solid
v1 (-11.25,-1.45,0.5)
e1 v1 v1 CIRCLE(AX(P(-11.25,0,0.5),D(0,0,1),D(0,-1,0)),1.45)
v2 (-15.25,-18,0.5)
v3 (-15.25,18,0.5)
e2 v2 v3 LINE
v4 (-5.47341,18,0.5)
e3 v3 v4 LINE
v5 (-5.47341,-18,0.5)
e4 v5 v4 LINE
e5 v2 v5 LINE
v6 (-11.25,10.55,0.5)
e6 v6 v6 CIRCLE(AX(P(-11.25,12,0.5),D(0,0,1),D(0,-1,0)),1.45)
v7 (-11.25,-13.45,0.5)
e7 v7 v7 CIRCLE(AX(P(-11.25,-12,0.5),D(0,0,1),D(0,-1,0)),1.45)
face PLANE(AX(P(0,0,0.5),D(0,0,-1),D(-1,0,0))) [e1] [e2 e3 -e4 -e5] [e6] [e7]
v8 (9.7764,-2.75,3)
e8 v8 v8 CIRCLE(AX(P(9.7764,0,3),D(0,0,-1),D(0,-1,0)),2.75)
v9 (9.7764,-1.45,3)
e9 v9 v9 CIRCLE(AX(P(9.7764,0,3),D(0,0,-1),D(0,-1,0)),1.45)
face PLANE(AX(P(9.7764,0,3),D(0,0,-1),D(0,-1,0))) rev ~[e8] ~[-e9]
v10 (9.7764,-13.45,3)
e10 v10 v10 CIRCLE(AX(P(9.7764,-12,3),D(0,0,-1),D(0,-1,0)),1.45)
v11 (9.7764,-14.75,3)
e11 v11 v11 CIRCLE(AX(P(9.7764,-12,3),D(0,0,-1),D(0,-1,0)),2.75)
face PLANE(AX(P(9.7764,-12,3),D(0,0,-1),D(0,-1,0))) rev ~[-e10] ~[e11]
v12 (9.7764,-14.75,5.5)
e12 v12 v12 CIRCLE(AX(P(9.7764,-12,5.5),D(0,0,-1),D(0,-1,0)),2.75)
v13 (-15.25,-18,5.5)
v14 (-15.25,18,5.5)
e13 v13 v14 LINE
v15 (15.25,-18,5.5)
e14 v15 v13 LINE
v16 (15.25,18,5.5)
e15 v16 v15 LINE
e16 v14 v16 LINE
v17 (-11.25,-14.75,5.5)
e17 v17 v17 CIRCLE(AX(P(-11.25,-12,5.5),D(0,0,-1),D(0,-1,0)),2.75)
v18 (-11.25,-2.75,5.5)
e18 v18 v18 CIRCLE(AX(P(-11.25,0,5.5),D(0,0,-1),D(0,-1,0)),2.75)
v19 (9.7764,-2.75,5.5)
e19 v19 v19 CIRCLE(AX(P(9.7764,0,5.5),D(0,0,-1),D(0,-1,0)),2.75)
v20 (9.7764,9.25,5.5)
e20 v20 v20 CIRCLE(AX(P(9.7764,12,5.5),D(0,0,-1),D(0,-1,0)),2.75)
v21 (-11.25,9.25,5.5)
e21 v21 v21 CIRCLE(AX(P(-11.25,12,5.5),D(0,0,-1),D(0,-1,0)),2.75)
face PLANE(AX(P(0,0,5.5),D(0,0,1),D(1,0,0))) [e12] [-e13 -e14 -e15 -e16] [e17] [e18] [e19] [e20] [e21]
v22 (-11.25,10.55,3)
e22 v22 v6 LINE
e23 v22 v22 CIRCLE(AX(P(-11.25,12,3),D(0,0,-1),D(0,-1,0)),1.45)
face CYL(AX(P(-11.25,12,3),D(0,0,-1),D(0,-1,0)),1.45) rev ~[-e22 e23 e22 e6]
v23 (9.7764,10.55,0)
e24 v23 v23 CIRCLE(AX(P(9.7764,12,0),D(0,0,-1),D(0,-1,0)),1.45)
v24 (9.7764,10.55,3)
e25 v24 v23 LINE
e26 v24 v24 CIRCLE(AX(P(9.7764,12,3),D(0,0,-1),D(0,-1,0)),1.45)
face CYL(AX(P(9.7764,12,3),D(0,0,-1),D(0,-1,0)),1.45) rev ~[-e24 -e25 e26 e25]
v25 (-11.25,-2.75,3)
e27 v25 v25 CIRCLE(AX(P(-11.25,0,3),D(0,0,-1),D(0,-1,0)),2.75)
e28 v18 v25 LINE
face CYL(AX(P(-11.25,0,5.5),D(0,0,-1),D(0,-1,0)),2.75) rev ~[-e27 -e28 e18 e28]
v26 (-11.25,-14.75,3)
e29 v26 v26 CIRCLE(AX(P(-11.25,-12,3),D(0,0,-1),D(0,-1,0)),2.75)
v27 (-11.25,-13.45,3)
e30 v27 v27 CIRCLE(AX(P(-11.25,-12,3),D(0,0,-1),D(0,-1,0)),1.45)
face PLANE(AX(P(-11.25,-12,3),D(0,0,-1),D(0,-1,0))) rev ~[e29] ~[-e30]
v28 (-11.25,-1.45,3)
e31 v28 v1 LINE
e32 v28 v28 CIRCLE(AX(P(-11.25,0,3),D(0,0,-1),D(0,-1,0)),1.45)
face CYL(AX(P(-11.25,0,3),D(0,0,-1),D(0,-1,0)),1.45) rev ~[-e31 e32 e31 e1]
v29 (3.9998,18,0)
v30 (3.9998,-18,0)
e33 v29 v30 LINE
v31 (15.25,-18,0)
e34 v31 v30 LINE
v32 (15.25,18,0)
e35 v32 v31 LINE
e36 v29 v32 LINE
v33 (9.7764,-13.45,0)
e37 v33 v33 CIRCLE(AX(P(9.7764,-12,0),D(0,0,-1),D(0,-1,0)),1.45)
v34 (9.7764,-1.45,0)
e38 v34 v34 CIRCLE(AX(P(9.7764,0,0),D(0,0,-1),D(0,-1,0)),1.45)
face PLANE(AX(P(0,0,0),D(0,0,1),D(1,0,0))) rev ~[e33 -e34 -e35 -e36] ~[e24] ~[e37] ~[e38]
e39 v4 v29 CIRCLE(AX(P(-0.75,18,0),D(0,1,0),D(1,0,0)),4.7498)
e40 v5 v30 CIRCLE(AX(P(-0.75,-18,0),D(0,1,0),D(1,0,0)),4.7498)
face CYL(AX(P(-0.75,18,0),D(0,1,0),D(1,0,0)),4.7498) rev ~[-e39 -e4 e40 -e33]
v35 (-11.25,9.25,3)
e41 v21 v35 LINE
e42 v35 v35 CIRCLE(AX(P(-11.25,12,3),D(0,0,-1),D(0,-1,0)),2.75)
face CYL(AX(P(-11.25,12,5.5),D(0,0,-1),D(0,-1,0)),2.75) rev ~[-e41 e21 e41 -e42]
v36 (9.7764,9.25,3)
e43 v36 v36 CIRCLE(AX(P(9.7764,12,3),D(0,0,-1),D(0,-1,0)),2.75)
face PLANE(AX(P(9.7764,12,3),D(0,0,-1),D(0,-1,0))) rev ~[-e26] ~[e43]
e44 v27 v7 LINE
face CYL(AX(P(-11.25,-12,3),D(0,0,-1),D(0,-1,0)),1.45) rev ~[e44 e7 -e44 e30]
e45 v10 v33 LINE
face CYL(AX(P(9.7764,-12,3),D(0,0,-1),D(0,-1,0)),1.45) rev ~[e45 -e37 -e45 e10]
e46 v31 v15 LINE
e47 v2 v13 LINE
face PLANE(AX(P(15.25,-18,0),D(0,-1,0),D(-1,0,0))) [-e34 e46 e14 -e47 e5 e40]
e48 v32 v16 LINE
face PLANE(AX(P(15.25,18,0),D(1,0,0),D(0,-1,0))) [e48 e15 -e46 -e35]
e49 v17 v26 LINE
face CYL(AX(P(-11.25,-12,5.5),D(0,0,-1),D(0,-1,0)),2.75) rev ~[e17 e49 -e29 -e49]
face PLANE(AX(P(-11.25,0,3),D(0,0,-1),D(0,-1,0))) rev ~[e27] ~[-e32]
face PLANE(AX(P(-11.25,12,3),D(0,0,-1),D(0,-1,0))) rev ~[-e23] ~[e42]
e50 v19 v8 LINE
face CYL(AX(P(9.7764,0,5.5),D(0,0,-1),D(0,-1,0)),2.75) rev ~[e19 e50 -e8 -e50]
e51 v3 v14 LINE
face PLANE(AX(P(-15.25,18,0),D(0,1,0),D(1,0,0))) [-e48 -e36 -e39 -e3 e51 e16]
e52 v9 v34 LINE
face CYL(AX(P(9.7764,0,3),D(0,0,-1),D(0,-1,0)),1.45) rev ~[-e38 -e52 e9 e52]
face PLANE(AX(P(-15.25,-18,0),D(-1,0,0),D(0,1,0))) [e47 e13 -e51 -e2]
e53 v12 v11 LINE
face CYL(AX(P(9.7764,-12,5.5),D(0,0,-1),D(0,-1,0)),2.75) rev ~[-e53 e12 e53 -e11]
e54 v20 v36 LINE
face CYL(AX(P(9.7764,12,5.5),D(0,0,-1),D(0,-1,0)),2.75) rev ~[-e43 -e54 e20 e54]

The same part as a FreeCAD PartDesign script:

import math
import FreeCAD as App
import Part
import Sketcher

V = App.Vector


def add_polygon(sketch, points):
    """Adds a closed chain of lines whose ends are joined by coincident constraints."""
    first, n = sketch.GeometryCount, len(points)
    for a, b in zip(points, points[1:] + points[:1]):
        sketch.addGeometry(Part.LineSegment(App.Vector(*a, 0), App.Vector(*b, 0)), False)
    for i in range(n):
        sketch.addConstraint(Sketcher.Constraint("Coincident", first + i, 2, first + (i + 1) % n, 1))

doc = App.newDocument("Part")
body = doc.addObject("PartDesign::Body", "Body")

# Sketch on XY plane
sketch1 = body.newObject("Sketcher::SketchObject", "Sketch")
sketch1.AttachmentSupport = (doc.getObject("XY_Plane"), [""])
sketch1.MapMode = "FlatFace"
add_polygon(sketch1, [(15.25, 18), (-15.25, 18), (-15.25, -18), (15.25, -18)])  # lines 0-3
sketch1.addConstraint(Sketcher.Constraint("Horizontal", 0))
sketch1.addConstraint(Sketcher.Constraint("Vertical", 1))
sketch1.addConstraint(Sketcher.Constraint("Horizontal", 2))
sketch1.addConstraint(Sketcher.Constraint("Vertical", 3))
sketch1.addConstraint(Sketcher.Constraint("Symmetric", 0, 2, 2, 2, -1, 1))
sketch1.addConstraint(Sketcher.Constraint("DistanceY", 1, 2, 1, 1, 36.0))
sketch1.addConstraint(Sketcher.Constraint("DistanceX", 0, 2, 0, 1, 30.5))
pad1 = body.newObject("PartDesign::Pad", "Pad")
pad1.Profile = sketch1
pad1.Length = 5.5

# Sketch on XZ plane
sketch2 = body.newObject("Sketcher::SketchObject", "Sketch001")
sketch2.AttachmentSupport = (doc.getObject("XZ_Plane"), [""])
sketch2.MapMode = "FlatFace"
sketch2.AttachmentOffset = App.Placement(V(0, 0, -18), App.Rotation())
sketch2.addGeometry(Part.ArcOfCircle(Part.Circle(V(-0.75, 0, 0), V(0, 0, 1), 4.7498), math.radians(0), math.radians(186.042596)), False)
sketch2.addGeometry(Part.ArcOfCircle(Part.Circle(V(-0.75, 0, 0), V(0, 0, 1), 4.7498), math.radians(-173.957404), math.radians(0)), False)
sketch2.addConstraint(Sketcher.Constraint("Tangent", 0, 1, 1, 2))
sketch2.addConstraint(Sketcher.Constraint("Coincident", 1, 1, 0, 2))
sketch2.addConstraint(Sketcher.Constraint("PointOnObject", 0, 3, -1))
sketch2.addConstraint(Sketcher.Constraint("PointOnObject", 0, 1, -1))
sketch2.addConstraint(Sketcher.Constraint("DistanceY", 1, 1, -1, 1, 0.5))
sketch2.addConstraint(Sketcher.Constraint("Radius", 0, 4.7498))
sketch2.addConstraint(Sketcher.Constraint("DistanceX", 0, 3, -1, 1, 0.75))
pocket1 = body.newObject("PartDesign::Pocket", "Pocket")
pocket1.Profile = sketch2
pocket1.Type = "ThroughAll"
pocket1.Reversed = True

# Sketch on XY plane
sketch3 = body.newObject("Sketcher::SketchObject", "Sketch002")
sketch3.AttachmentSupport = (doc.getObject("XY_Plane"), [""])
sketch3.MapMode = "FlatFace"
sketch3.AttachmentOffset = App.Placement(V(0, 0, 5.5), App.Rotation())
sketch3.addGeometry(Part.Circle(V(-11.25, -12, 0), V(0, 0, 1), 1.45), False)
sketch3.addGeometry(Part.Circle(V(-11.25, 0, 0), V(0, 0, 1), 1.45), False)
sketch3.addGeometry(Part.Circle(V(-11.25, 12, 0), V(0, 0, 1), 1.45), False)
sketch3.addGeometry(Part.Circle(V(9.7764, -12, 0), V(0, 0, 1), 1.45), False)
sketch3.addGeometry(Part.Circle(V(9.7764, 0, 0), V(0, 0, 1), 1.45), False)
sketch3.addGeometry(Part.Circle(V(9.7764, 12, 0), V(0, 0, 1), 1.45), False)
sketch3.addConstraint(Sketcher.Constraint("Equal", 0, 1))
sketch3.addConstraint(Sketcher.Constraint("Equal", 1, 2))
sketch3.addConstraint(Sketcher.Constraint("Equal", 2, 3))
sketch3.addConstraint(Sketcher.Constraint("Equal", 3, 4))
sketch3.addConstraint(Sketcher.Constraint("Equal", 4, 5))
sketch3.addConstraint(Sketcher.Constraint("Symmetric", 0, 3, 2, 3, -1))
sketch3.addConstraint(Sketcher.Constraint("Symmetric", 3, 3, 5, 3, -1))
sketch3.addConstraint(Sketcher.Constraint("PointOnObject", 1, 3, -1))
sketch3.addConstraint(Sketcher.Constraint("PointOnObject", 4, 3, -1))
sketch3.addConstraint(Sketcher.Constraint("Horizontal", 0, 3, 3, 3))
sketch3.addConstraint(Sketcher.Constraint("Vertical", 0, 3, 1, 3))
sketch3.addConstraint(Sketcher.Constraint("Vertical", 3, 3, 4, 3))
sketch3.addConstraint(Sketcher.Constraint("Diameter", 0, 2.9))
sketch3.addConstraint(Sketcher.Constraint("DistanceY", 0, 3, -1, 1, 12.0))
sketch3.addConstraint(Sketcher.Constraint("DistanceX", 0, 3, -1, 1, 11.25))
sketch3.addConstraint(Sketcher.Constraint("DistanceX", -1, 1, 3, 3, 9.7764))
doc.recompute()
hole = body.newObject("PartDesign::Hole", "Hole")
hole.Profile = sketch3
hole.ThreadType = "None"
hole.Diameter = 2.9
hole.DepthType = "ThroughAll"
hole.HoleCutType = "Counterbore"
hole.HoleCutDiameter = 5.5
hole.HoleCutDepth = 2.5

# Sketch on XY plane
sketch4 = body.newObject("Sketcher::SketchObject", "Sketch003")
sketch4.AttachmentSupport = (doc.getObject("XY_Plane"), [""])
sketch4.MapMode = "FlatFace"
add_polygon(sketch4, [(-15.25, 18), (-4.4998, 18), (-4.4998, -18), (-15.25, -18)])  # lines 0-3
sketch4.addGeometry(Part.Circle(V(-11.25, -12, 0), V(0, 0, 1), 1.45), False)  # 4
sketch4.addGeometry(Part.Circle(V(-11.25, 0, 0), V(0, 0, 1), 1.45), False)  # 5
sketch4.addGeometry(Part.Circle(V(-11.25, 12, 0), V(0, 0, 1), 1.45), False)  # 6
sketch4.addConstraint(Sketcher.Constraint("Horizontal", 0))
sketch4.addConstraint(Sketcher.Constraint("Vertical", 1))
sketch4.addConstraint(Sketcher.Constraint("Horizontal", 2))
sketch4.addConstraint(Sketcher.Constraint("Vertical", 3))
sketch4.addConstraint(Sketcher.Constraint("Equal", 4, 5))
sketch4.addConstraint(Sketcher.Constraint("Equal", 5, 6))
sketch4.addConstraint(Sketcher.Constraint("Symmetric", 4, 3, 6, 3, -1))
sketch4.addConstraint(Sketcher.Constraint("PointOnObject", 5, 3, -1))
sketch4.addConstraint(Sketcher.Constraint("Vertical", 4, 3, 5, 3))
sketch4.addConstraint(Sketcher.Constraint("Diameter", 4, 2.9))
sketch4.addConstraint(Sketcher.Constraint("DistanceY", 1, 2, 1, 1, 36.0))
sketch4.addConstraint(Sketcher.Constraint("DistanceY", 4, 3, -1, 1, 12.0))
sketch4.addConstraint(Sketcher.Constraint("DistanceY", -1, 1, 0, 2, 18.0))
sketch4.addConstraint(Sketcher.Constraint("DistanceX", 2, 2, 4, 3, 4.0))
sketch4.addConstraint(Sketcher.Constraint("DistanceX", 4, 3, -1, 1, 11.25))
sketch4.addConstraint(Sketcher.Constraint("DistanceX", 0, 1, 0, 2, 10.7502))
pocket2 = body.newObject("PartDesign::Pocket", "Pocket001")
pocket2.Profile = sketch4
pocket2.Length = 0.5
pocket2.Reversed = True

doc.recompute()
